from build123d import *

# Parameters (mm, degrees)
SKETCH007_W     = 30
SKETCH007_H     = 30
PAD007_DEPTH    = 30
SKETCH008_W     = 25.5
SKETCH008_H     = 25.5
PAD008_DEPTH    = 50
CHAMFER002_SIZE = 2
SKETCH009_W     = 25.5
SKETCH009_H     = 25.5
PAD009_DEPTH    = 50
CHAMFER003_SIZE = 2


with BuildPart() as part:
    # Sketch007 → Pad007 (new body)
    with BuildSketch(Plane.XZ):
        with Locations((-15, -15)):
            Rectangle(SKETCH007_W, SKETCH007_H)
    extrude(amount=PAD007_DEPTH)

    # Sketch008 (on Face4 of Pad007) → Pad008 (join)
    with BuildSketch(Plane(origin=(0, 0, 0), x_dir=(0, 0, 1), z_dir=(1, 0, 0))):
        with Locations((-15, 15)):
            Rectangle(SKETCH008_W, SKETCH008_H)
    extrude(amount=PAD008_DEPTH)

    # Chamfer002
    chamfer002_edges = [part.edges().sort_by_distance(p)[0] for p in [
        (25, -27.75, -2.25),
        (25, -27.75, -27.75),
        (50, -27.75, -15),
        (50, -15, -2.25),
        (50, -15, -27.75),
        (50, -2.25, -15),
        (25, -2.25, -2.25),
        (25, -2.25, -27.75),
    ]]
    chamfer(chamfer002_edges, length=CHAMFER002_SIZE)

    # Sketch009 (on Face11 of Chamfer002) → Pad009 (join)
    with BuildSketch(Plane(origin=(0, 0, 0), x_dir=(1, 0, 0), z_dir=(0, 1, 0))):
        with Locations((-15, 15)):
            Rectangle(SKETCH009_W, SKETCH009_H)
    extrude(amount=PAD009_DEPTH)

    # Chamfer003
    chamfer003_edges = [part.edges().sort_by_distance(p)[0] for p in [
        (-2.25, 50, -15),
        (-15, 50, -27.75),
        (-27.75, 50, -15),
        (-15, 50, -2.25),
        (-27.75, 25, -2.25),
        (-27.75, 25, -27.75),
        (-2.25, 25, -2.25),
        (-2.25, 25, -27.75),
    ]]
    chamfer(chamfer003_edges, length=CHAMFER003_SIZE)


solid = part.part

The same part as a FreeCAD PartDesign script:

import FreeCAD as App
import Part
import Sketcher

V = App.Vector


def edges_at(feature, points):
    """Names of the edges that pass closest to the given points."""
    edges = feature.Shape.Edges
    near = lambda p: min(range(len(edges)), key=lambda i: edges[i].distToShape(Part.Vertex(*p))[0])
    return sorted({f"Edge{near(p) + 1}" for p in points})


def add_polygon(sketch, points):
    """Adds a closed chain of lines whose ends are joined by coincident constraints."""
    first, n = sketch.GeometryCount, len(points)
    for a, b in zip(points, points[1:] + points[:1]):
        sketch.addGeometry(Part.LineSegment(App.Vector(*a, 0), App.Vector(*b, 0)), False)
    for i in range(n):
        sketch.addConstraint(Sketcher.Constraint("Coincident", first + i, 2, first + (i + 1) % n, 1))

doc = App.newDocument("Part")
body = doc.addObject("PartDesign::Body", "Body")

# Sketch on XZ plane
sketch1 = doc.addObject("Sketcher::SketchObject", "Sketch")
body.addObject(sketch1)
sketch1.AttachmentSupport = (doc.XZ_Plane, [""])
sketch1.MapMode = "FlatFace"
add_polygon(sketch1, [(-30, 0), (-30, -30), (0, -30), (0, 0)])  # lines 0-3
sketch1.addConstraint([
    Sketcher.Constraint("Vertical", 0),
    Sketcher.Constraint("Horizontal", 1),
    Sketcher.Constraint("Vertical", 2),
    Sketcher.Constraint("Horizontal", 3),
    Sketcher.Constraint("Coincident", 2, 2, -1, 1),
    Sketcher.Constraint("Equal", 3, 0),
    Sketcher.Constraint("DistanceX", 1, 1, 1, 2, 30.0),
])
pad1 = doc.addObject("PartDesign::Pad", "Pad")
body.addObject(pad1)
pad1.Profile = sketch1
pad1.Length = 30

# Sketch on YZ plane
sketch2 = doc.addObject("Sketcher::SketchObject", "Sketch001")
body.addObject(sketch2)
sketch2.AttachmentSupport = (doc.YZ_Plane, [""])
sketch2.MapMode = "FlatFace"
add_polygon(sketch2, [(-28, -28), (-2, -28), (-2, -2), (-28, -2)])  # lines 0-3
sketch2.addConstraint([
    Sketcher.Constraint("Horizontal", 0),
    Sketcher.Constraint("Vertical", 1),
    Sketcher.Constraint("Horizontal", 2),
    Sketcher.Constraint("Vertical", 3),
    Sketcher.Constraint("Equal", 2, 1),
    Sketcher.Constraint("DistanceX", 0, 1, 0, 2, 25.5),
    Sketcher.Constraint("DistanceX", 0, 2, -1, 1, 2.25),
    Sketcher.Constraint("DistanceY", 0, 2, -1, 1, 27.75),
])
pad2 = doc.addObject("PartDesign::Pad", "Pad001")
body.addObject(pad2)
pad2.Profile = sketch2
pad2.Length = 50
doc.recompute()

chamfer = doc.addObject("PartDesign::Chamfer", "Chamfer")
body.addObject(chamfer)
chamfer.Base = (pad2, edges_at(pad2, [
    (25, -27.75, -2.25),
    (25, -27.75, -27.75),
    (50, -27.75, -15),
    (50, -15, -2.25),
    (50, -15, -27.75),
    (50, -2.25, -15),
    (25, -2.25, -2.25),
    (25, -2.25, -27.75),
]))
chamfer.Size = 2

# Sketch on XZ plane
sketch3 = doc.addObject("Sketcher::SketchObject", "Sketch002")
body.addObject(sketch3)
sketch3.AttachmentSupport = (doc.XZ_Plane, [""])
sketch3.MapMode = "FlatFace"
add_polygon(sketch3, [(-28, -28), (-28, -2), (-2, -2), (-2, -28)])  # lines 0-3
sketch3.addConstraint([
    Sketcher.Constraint("Vertical", 0),
    Sketcher.Constraint("Horizontal", 1),
    Sketcher.Constraint("Vertical", 2),
    Sketcher.Constraint("Horizontal", 3),
    Sketcher.Constraint("Equal", 3, 0),
    Sketcher.Constraint("DistanceX", 1, 1, 1, 2, 25.5),
    Sketcher.Constraint("DistanceX", 0, 2, -1, 1, 27.75),
    Sketcher.Constraint("DistanceY", 0, 2, -1, 1, 2.25),
])
pad3 = doc.addObject("PartDesign::Pad", "Pad002")
body.addObject(pad3)
pad3.Profile = sketch3
pad3.Length = 50
pad3.Reversed = True
doc.recompute()

chamfer2 = doc.addObject("PartDesign::Chamfer", "Chamfer001")
body.addObject(chamfer2)
chamfer2.Base = (pad3, edges_at(pad3, [
    (-2.25, 50, -15),
    (-15, 50, -27.75),
    (-27.75, 50, -15),
    (-15, 50, -2.25),
    (-27.75, 25, -2.25),
    (-27.75, 25, -27.75),
    (-2.25, 25, -2.25),
    (-2.25, 25, -27.75),
]))
chamfer2.Size = 2

doc.recompute()
